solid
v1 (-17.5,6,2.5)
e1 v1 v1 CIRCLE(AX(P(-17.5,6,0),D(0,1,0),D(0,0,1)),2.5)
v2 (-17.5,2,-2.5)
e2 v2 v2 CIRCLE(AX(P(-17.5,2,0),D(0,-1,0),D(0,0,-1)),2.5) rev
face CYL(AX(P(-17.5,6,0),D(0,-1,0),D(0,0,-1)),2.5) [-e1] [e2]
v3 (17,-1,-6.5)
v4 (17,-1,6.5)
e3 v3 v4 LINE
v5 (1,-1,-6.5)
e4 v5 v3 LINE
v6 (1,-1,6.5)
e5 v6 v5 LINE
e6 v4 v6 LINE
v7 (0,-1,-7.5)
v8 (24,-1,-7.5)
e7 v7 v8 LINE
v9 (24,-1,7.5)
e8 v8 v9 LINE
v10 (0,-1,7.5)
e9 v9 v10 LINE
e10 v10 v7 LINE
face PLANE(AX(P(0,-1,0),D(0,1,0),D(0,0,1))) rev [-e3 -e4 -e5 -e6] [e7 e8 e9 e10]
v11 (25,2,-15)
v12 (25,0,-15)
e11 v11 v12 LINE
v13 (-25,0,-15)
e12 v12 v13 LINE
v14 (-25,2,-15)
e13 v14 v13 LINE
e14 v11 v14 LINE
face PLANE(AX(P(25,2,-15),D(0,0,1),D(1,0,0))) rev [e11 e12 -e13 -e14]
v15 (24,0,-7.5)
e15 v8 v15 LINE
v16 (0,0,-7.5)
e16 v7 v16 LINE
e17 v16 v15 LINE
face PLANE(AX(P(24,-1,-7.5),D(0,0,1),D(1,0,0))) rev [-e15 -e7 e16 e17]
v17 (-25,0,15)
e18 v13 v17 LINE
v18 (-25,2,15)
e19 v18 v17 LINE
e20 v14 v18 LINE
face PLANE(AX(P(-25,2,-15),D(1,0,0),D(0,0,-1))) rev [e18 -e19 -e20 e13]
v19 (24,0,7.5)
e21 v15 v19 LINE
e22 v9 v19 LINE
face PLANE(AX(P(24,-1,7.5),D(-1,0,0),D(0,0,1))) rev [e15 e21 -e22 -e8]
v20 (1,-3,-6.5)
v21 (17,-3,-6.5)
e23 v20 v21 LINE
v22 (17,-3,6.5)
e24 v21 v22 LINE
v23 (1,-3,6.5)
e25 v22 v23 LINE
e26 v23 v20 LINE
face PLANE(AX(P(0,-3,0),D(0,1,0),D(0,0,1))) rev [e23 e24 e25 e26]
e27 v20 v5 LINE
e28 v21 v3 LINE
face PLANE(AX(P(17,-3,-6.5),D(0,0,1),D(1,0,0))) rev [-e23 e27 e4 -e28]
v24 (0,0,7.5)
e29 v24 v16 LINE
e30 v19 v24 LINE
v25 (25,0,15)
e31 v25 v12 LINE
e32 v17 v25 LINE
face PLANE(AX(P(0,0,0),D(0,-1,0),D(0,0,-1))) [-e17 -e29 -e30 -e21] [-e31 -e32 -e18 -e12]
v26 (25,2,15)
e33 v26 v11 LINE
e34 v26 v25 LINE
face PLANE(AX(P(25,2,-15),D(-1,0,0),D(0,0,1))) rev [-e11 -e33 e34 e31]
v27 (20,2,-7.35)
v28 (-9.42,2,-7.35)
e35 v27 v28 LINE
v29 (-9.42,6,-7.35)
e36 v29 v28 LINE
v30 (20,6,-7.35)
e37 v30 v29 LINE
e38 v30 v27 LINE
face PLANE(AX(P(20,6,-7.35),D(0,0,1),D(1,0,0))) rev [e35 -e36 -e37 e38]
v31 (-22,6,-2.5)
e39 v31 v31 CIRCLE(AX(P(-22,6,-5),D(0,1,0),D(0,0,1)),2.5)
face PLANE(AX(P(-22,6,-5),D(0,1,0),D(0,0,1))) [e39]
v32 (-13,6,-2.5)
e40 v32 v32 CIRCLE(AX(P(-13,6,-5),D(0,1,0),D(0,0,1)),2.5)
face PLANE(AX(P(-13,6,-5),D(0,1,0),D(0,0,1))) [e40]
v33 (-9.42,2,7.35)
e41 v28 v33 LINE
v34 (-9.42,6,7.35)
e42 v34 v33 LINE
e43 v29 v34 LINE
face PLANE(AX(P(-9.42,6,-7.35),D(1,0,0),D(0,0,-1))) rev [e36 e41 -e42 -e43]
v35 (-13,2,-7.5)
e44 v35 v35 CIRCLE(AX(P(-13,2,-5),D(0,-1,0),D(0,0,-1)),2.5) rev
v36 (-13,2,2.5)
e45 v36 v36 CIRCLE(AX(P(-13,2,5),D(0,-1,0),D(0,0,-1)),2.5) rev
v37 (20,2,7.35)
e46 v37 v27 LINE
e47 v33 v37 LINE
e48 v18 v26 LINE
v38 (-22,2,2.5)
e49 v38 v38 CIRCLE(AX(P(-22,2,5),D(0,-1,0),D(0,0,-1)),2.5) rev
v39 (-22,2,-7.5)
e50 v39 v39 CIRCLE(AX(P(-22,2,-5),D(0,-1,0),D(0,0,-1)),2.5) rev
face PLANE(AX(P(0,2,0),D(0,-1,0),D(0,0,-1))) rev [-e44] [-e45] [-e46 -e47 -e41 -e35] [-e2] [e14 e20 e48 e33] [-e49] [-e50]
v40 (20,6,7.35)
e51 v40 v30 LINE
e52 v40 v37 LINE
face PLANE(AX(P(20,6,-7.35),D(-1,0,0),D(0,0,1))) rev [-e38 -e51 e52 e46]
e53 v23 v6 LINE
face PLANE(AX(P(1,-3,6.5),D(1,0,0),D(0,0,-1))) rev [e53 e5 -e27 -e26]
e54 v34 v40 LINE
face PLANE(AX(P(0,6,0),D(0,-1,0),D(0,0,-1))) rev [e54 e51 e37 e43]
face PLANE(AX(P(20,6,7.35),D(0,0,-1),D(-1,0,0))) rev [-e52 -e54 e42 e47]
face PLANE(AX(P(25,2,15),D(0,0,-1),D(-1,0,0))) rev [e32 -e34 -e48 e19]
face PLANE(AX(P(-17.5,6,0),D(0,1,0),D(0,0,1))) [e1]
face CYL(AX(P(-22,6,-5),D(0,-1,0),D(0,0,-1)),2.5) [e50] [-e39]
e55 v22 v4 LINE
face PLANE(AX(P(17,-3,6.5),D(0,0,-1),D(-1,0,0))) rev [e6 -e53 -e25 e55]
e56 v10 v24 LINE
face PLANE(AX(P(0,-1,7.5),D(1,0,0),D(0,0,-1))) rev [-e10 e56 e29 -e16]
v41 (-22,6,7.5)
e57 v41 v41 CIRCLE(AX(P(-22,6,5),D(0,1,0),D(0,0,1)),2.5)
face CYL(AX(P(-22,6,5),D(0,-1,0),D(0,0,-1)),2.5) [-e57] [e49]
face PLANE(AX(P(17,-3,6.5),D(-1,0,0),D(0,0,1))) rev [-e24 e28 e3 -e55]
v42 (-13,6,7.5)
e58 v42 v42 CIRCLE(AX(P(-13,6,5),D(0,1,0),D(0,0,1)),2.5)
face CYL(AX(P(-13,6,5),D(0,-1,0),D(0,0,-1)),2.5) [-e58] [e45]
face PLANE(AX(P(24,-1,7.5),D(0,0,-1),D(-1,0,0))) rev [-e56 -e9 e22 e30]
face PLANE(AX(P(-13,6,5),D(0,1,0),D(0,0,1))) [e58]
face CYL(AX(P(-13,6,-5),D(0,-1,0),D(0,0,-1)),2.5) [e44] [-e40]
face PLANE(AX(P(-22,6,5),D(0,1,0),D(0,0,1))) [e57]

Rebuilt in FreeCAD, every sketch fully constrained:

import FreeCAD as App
import Part
import Sketcher
from FreeCAD import Vector

doc = App.newDocument("Part")
body = doc.addObject("PartDesign::Body", "Body")

# Sketch on XZ plane
sketch1 = body.newObject("Sketcher::SketchObject", "Sketch")
sketch1.AttachmentSupport = (doc.getObject("XZ_Plane"), [""])
sketch1.MapMode = "FlatFace"
sketch1.addGeometry([
    Part.LineSegment(Vector(-25, -15, 0), Vector(-25, 15, 0)),
    Part.LineSegment(Vector(-25, 15, 0), Vector(25, 15, 0)),
    Part.LineSegment(Vector(25, 15, 0), Vector(25, -15, 0)),
    Part.LineSegment(Vector(25, -15, 0), Vector(-25, -15, 0)),
], False)
sketch1.addConstraint([
    Sketcher.Constraint("Coincident", 0, 2, 1, 1),
    Sketcher.Constraint("Coincident", 1, 2, 2, 1),
    Sketcher.Constraint("Coincident", 2, 2, 3, 1),
    Sketcher.Constraint("Coincident", 3, 2, 0, 1),
    Sketcher.Constraint("Vertical", 0),
    Sketcher.Constraint("Horizontal", 1),
    Sketcher.Constraint("Vertical", 2),
    Sketcher.Constraint("Horizontal", 3),
    Sketcher.Constraint("Symmetric", 0, 2, 2, 2, -1, 1),
    Sketcher.Constraint("DistanceX", 1, 1, 1, 2, 50.0),
    Sketcher.Constraint("DistanceY", 0, 1, 0, 2, 30.0),
])
pad1 = body.newObject("PartDesign::Pad", "Pad")
pad1.Profile = sketch1
pad1.Length = 2
pad1.Reversed = True

# Sketch on XZ plane
sketch2 = body.newObject("Sketcher::SketchObject", "Sketch001")
sketch2.AttachmentSupport = (doc.getObject("XZ_Plane"), [""])
sketch2.MapMode = "FlatFace"
sketch2.AttachmentOffset = App.Placement(Vector(0, 0, -2), App.Rotation())
sketch2.addGeometry([
    Part.LineSegment(Vector(-9, -7, 0), Vector(-9, 7, 0)),
    Part.LineSegment(Vector(-9, 7, 0), Vector(20, 7, 0)),
    Part.LineSegment(Vector(20, 7, 0), Vector(20, -7, 0)),
    Part.LineSegment(Vector(20, -7, 0), Vector(-9, -7, 0)),
], False)
sketch2.addConstraint([
    Sketcher.Constraint("Coincident", 0, 2, 1, 1),
    Sketcher.Constraint("Coincident", 1, 2, 2, 1),
    Sketcher.Constraint("Coincident", 2, 2, 3, 1),
    Sketcher.Constraint("Coincident", 3, 2, 0, 1),
    Sketcher.Constraint("Vertical", 0),
    Sketcher.Constraint("Horizontal", 1),
    Sketcher.Constraint("Vertical", 2),
    Sketcher.Constraint("Horizontal", 3),
    Sketcher.Constraint("DistanceY", 0, 1, 0, 2, 14.7),
    Sketcher.Constraint("DistanceX", -1, 1, 1, 2, 20.0),
    Sketcher.Constraint("DistanceX", 1, 1, 1, 2, 29.42),
    Sketcher.Constraint("DistanceY", -1, 1, 0, 2, 7.35),
])
pad2 = body.newObject("PartDesign::Pad", "Pad001")
pad2.Profile = sketch2
pad2.Length = 4
pad2.Reversed = True

# Sketch on XZ plane
sketch3 = body.newObject("Sketcher::SketchObject", "Sketch002")
sketch3.AttachmentSupport = (doc.getObject("XZ_Plane"), [""])
sketch3.MapMode = "FlatFace"
sketch3.addGeometry([
    Part.LineSegment(Vector(24, -8, 0), Vector(24, 8, 0)),
    Part.LineSegment(Vector(24, 8, 0), Vector(0, 8, 0)),
    Part.LineSegment(Vector(0, 8, 0), Vector(0, -8, 0)),
    Part.LineSegment(Vector(0, -8, 0), Vector(24, -8, 0)),
], False)
sketch3.addConstraint([
    Sketcher.Constraint("Coincident", 0, 2, 1, 1),
    Sketcher.Constraint("Coincident", 1, 2, 2, 1),
    Sketcher.Constraint("Coincident", 2, 2, 3, 1),
    Sketcher.Constraint("Coincident", 3, 2, 0, 1),
    Sketcher.Constraint("Vertical", 0),
    Sketcher.Constraint("Horizontal", 1),
    Sketcher.Constraint("Vertical", 2),
    Sketcher.Constraint("Horizontal", 3),
    Sketcher.Constraint("Symmetric", 1, 2, 2, 2, -1, 1),
    Sketcher.Constraint("DistanceX", 1, 2, 1, 1, 24.0),
    Sketcher.Constraint("DistanceY", 0, 1, 0, 2, 15.0),
])
pad3 = body.newObject("PartDesign::Pad", "Pad002")
pad3.Profile = sketch3
pad3.Length = 1

# Sketch on XZ plane
sketch4 = body.newObject("Sketcher::SketchObject", "Sketch003")
sketch4.AttachmentSupport = (doc.getObject("XZ_Plane"), [""])
sketch4.MapMode = "FlatFace"
sketch4.AttachmentOffset = App.Placement(Vector(0, 0, 1), App.Rotation())
sketch4.addGeometry([
    Part.LineSegment(Vector(1, 6, 0), Vector(1, -6, 0)),
    Part.LineSegment(Vector(1, -6, 0), Vector(17, -6, 0)),
    Part.LineSegment(Vector(17, -6, 0), Vector(17, 6, 0)),
    Part.LineSegment(Vector(17, 6, 0), Vector(1, 6, 0)),
], False)
sketch4.addConstraint([
    Sketcher.Constraint("Coincident", 0, 2, 1, 1),
    Sketcher.Constraint("Coincident", 1, 2, 2, 1),
    Sketcher.Constraint("Coincident", 2, 2, 3, 1),
    Sketcher.Constraint("Coincident", 3, 2, 0, 1),
    Sketcher.Constraint("Vertical", 0),
    Sketcher.Constraint("Horizontal", 1),
    Sketcher.Constraint("Vertical", 2),
    Sketcher.Constraint("Horizontal", 3),
    Sketcher.Constraint("DistanceX", 1, 1, 1, 2, 16.0),
    Sketcher.Constraint("DistanceY", 0, 2, 0, 1, 13.0),
    Sketcher.Constraint("DistanceX", -1, 1, 0, 2, 1.0),
    Sketcher.Constraint("DistanceY", 0, 2, -1, 1, 6.5),
])
pad4 = body.newObject("PartDesign::Pad", "Pad003")
pad4.Profile = sketch4
pad4.Length = 2

# Sketch on XZ plane
sketch5 = body.newObject("Sketcher::SketchObject", "Sketch004")
sketch5.AttachmentSupport = (doc.getObject("XZ_Plane"), [""])
sketch5.MapMode = "FlatFace"
sketch5.AttachmentOffset = App.Placement(Vector(0, 0, -2), App.Rotation())
sketch5.addGeometry([
    Part.Circle(Vector(-22, -5, 0), Vector(0, 0, 1), 2.5),  # 0
    Part.Circle(Vector(-22, 5, 0), Vector(0, 0, 1), 2.5),  # 1
    Part.Circle(Vector(-13, 5, 0), Vector(0, 0, 1), 2.5),  # 2
    Part.Circle(Vector(-13, -5, 0), Vector(0, 0, 1), 2.5),  # 3
    Part.Circle(Vector(-17.5, 0, 0), Vector(0, 0, 1), 2.5),  # 4
], False)
sketch5.addConstraint([
    Sketcher.Constraint("Equal", 0, 1),
    Sketcher.Constraint("Equal", 1, 2),
    Sketcher.Constraint("Equal", 2, 3),
    Sketcher.Constraint("Equal", 3, 4),
    Sketcher.Constraint("Symmetric", 0, 3, 1, 3, -1),
    Sketcher.Constraint("Symmetric", 2, 3, 3, 3, -1),
    Sketcher.Constraint("PointOnObject", 4, 3, -1),
    Sketcher.Constraint("Horizontal", 1, 3, 2, 3),
    Sketcher.Constraint("Diameter", 0, 5.0),
    Sketcher.Constraint("DistanceX", 0, 3, -1, 1, 22.0),
    Sketcher.Constraint("DistanceY", 0, 3, -1, 1, 5.0),
    Sketcher.Constraint("DistanceX", 2, 3, -1, 1, 13.0),
    Sketcher.Constraint("DistanceX", 4, 3, -1, 1, 17.5),
])
pad5 = body.newObject("PartDesign::Pad", "Pad004")
pad5.Profile = sketch5
pad5.Length = 4
pad5.Reversed = True

doc.recompute()
